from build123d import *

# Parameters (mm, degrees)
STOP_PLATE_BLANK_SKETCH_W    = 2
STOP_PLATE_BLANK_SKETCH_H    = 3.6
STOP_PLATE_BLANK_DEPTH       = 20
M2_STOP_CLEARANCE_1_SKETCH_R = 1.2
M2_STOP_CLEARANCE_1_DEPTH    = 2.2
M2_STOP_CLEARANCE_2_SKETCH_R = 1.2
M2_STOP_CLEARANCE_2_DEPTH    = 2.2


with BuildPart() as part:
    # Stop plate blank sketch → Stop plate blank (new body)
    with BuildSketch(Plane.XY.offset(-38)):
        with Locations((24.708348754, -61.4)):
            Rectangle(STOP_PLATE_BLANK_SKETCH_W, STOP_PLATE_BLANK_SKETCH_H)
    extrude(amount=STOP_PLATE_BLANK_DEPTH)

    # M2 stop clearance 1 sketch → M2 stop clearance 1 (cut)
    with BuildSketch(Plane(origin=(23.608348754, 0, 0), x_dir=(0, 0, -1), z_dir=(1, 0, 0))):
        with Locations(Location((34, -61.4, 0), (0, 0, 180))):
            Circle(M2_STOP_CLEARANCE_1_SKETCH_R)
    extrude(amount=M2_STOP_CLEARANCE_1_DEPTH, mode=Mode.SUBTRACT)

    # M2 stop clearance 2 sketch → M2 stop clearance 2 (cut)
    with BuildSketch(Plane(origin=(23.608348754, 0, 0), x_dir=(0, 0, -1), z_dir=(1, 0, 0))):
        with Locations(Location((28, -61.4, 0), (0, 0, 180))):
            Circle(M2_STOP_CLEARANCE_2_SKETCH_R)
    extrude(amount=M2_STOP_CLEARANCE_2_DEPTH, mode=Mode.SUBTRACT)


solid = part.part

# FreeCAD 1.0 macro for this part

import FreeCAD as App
import Part
import Sketcher

V = App.Vector
Q = App.Units.Quantity

doc = App.newDocument("Part")
body = doc.addObject("PartDesign::Body", "Body")

# Sketch on XY plane
sketch1 = doc.addObject("Sketcher::SketchObject", "Sketch")
body.addObject(sketch1)
sketch1.AttachmentSupport = (doc.XY_Plane, [""])
sketch1.MapMode = "FlatFace"
sketch1.AttachmentOffset = App.Placement(V(0, 0, -38), App.Rotation())
sketch1.addGeometry(Part.LineSegment(V(23.708349, -59.6, 0), V(23.708349, -63.2, 0)), False)
sketch1.addGeometry(Part.LineSegment(V(23.708349, -63.2, 0), V(25.708349, -63.2, 0)), False)
sketch1.addGeometry(Part.LineSegment(V(25.708349, -63.2, 0), V(25.708349, -59.6, 0)), False)
sketch1.addGeometry(Part.LineSegment(V(25.708349, -59.6, 0), V(23.708349, -59.6, 0)), False)
sketch1.addConstraint(Sketcher.Constraint("Coincident", 0, 2, 1, 1))
sketch1.addConstraint(Sketcher.Constraint("Coincident", 1, 2, 2, 1))
sketch1.addConstraint(Sketcher.Constraint("Coincident", 2, 2, 3, 1))
sketch1.addConstraint(Sketcher.Constraint("Coincident", 3, 2, 0, 1))
sketch1.addConstraint(Sketcher.Constraint("Vertical", 0))
sketch1.addConstraint(Sketcher.Constraint("Horizontal", 1))
sketch1.addConstraint(Sketcher.Constraint("Vertical", 2))
sketch1.addConstraint(Sketcher.Constraint("Horizontal", 3))
sketch1.addConstraint(Sketcher.Constraint("DistanceX", 1, 1, 1, 2, Q("2 mm")))
sketch1.addConstraint(Sketcher.Constraint("DistanceY", 0, 2, 0, 1, Q("3.6 mm")))
sketch1.addConstraint(Sketcher.Constraint("DistanceY", 0, 2, -1, 1, Q("63.2 mm")))
sketch1.addConstraint(Sketcher.Constraint("DistanceX", -1, 1, 0, 2, Q("23.708349 mm")))
pad1 = doc.addObject("PartDesign::Pad", "Pad")
body.addObject(pad1)
pad1.Profile = sketch1
pad1.Length = 20

# Sketch on YZ plane
sketch2 = doc.addObject("Sketcher::SketchObject", "Sketch001")
body.addObject(sketch2)
sketch2.AttachmentSupport = (doc.YZ_Plane, [""])
sketch2.MapMode = "FlatFace"
sketch2.AttachmentOffset = App.Placement(V(0, 0, 23.608349), App.Rotation())
sketch2.addGeometry(Part.Circle(V(-61.4, -34, 0), V(0, 0, 1), 1.2), False)
sketch2.addConstraint(Sketcher.Constraint("Diameter", 0, Q("2.4 mm")))
sketch2.addConstraint(Sketcher.Constraint("DistanceY", 0, 3, -1, 1, Q("34 mm")))
sketch2.addConstraint(Sketcher.Constraint("DistanceX", 0, 3, -1, 1, Q("61.4 mm")))
pocket1 = doc.addObject("PartDesign::Pocket", "Pocket")
body.addObject(pocket1)
pocket1.Profile = sketch2
pocket1.Length = 2.2
pocket1.Reversed = True

# Sketch on YZ plane
sketch3 = doc.addObject("Sketcher::SketchObject", "Sketch002")
body.addObject(sketch3)
sketch3.AttachmentSupport = (doc.YZ_Plane, [""])
sketch3.MapMode = "FlatFace"
sketch3.AttachmentOffset = App.Placement(V(0, 0, 23.608349), App.Rotation())
sketch3.addGeometry(Part.Circle(V(-61.4, -28, 0), V(0, 0, 1), 1.2), False)
sketch3.addConstraint(Sketcher.Constraint("Diameter", 0, Q("2.4 mm")))
sketch3.addConstraint(Sketcher.Constraint("DistanceY", 0, 3, -1, 1, Q("28 mm")))
sketch3.addConstraint(Sketcher.Constraint("DistanceX", 0, 3, -1, 1, Q("61.4 mm")))
pocket2 = doc.addObject("PartDesign::Pocket", "Pocket001")
body.addObject(pocket2)
pocket2.Profile = sketch3
pocket2.Length = 2.2
pocket2.Reversed = True

doc.recompute()
